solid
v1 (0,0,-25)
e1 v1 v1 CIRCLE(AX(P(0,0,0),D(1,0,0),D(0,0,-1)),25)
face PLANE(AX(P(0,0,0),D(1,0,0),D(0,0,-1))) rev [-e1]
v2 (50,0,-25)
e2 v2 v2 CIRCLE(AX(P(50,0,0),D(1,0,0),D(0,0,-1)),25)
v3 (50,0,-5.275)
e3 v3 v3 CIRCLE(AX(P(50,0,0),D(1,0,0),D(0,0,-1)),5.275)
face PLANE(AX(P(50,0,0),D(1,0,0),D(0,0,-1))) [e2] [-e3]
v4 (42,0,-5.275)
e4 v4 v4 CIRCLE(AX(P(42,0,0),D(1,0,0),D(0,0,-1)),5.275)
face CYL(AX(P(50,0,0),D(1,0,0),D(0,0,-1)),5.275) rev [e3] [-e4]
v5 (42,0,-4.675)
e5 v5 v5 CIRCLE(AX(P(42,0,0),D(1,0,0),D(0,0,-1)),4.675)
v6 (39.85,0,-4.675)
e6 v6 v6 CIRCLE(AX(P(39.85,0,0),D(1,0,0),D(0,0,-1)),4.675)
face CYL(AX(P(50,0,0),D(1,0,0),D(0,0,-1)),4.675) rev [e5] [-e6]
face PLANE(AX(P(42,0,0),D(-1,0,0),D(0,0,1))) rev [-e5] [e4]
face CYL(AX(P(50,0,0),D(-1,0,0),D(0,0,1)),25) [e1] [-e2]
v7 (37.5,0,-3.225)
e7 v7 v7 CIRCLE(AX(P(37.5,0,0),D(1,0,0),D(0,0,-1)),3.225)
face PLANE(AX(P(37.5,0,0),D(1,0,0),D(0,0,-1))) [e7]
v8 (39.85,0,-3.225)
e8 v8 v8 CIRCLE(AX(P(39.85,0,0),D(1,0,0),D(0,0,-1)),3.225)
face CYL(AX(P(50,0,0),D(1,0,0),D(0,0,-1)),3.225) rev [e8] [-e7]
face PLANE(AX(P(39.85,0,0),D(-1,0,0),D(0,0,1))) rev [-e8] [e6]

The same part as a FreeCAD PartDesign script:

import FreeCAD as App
import Part
import Sketcher
Q = App.Units.Quantity


def add_polygon(sketch, points):
    """Adds a closed chain of lines whose ends are joined by coincident constraints."""
    first, n = sketch.GeometryCount, len(points)
    for a, b in zip(points, points[1:] + points[:1]):
        sketch.addGeometry(Part.LineSegment(App.Vector(*a, 0), App.Vector(*b, 0)), False)
    for i in range(n):
        sketch.addConstraint(Sketcher.Constraint("Coincident", first + i, 2, first + (i + 1) % n, 1))

doc = App.newDocument("Part")
body = doc.addObject("PartDesign::Body", "Body")

# Sketch on YZ plane
sketch1 = body.newObject("Sketcher::SketchObject", "Sketch")
sketch1.AttachmentSupport = (doc.getObject("YZ_Plane"), [""])
sketch1.MapMode = "FlatFace"
sketch1.addGeometry(Part.Circle(App.Vector(0, 0, 0), App.Vector(0, 0, 1), 25), False)
sketch1.addConstraint([
    Sketcher.Constraint("Coincident", 0, 3, -1, 1),
    Sketcher.Constraint("Diameter", 0, Q("50 mm")),
])
pad1 = body.newObject("PartDesign::Pad", "Pad")
pad1.Profile = sketch1
pad1.Length = 50

# Sketch on XZ plane
sketch2 = body.newObject("Sketcher::SketchObject", "Sketch001")
sketch2.AttachmentSupport = (doc.getObject("XZ_Plane"), [""])
sketch2.MapMode = "FlatFace"
add_polygon(sketch2, [(50, 0), (50, -5.3), (42, -5.3), (42, -4.7), (39.9, -4.7), (39.9, -3.2), (37.5, -3.2), (37.5, 0)])  # lines 0-7
sketch2.addConstraint([
    Sketcher.Constraint("Vertical", 0),
    Sketcher.Constraint("Horizontal", 1),
    Sketcher.Constraint("Vertical", 2),
    Sketcher.Constraint("Horizontal", 3),
    Sketcher.Constraint("Vertical", 4),
    Sketcher.Constraint("Horizontal", 5),
    Sketcher.Constraint("Vertical", 6),
    Sketcher.Constraint("Horizontal", 7),
    Sketcher.Constraint("PointOnObject", 6, 2, -1),
    Sketcher.Constraint("DistanceX", 1, 2, 1, 1, Q("8 mm")),
    Sketcher.Constraint("DistanceX", 7, 1, 7, 2, Q("12.5 mm")),
    Sketcher.Constraint("DistanceY", 2, 1, 2, 2, Q("0.6 mm")),
    Sketcher.Constraint("DistanceX", -1, 1, 0, 2, Q("50 mm")),
    Sketcher.Constraint("DistanceX", 3, 2, 3, 1, Q("2.15 mm")),
    Sketcher.Constraint("DistanceY", 4, 1, 4, 2, Q("1.45 mm")),
    Sketcher.Constraint("DistanceY", 0, 2, 0, 1, Q("5.275 mm")),
])
groove = body.newObject("PartDesign::Groove", "Groove")
groove.Profile = sketch2
groove.ReferenceAxis = (sketch2, ["H_Axis"])
groove.Angle = 360

doc.recompute()
